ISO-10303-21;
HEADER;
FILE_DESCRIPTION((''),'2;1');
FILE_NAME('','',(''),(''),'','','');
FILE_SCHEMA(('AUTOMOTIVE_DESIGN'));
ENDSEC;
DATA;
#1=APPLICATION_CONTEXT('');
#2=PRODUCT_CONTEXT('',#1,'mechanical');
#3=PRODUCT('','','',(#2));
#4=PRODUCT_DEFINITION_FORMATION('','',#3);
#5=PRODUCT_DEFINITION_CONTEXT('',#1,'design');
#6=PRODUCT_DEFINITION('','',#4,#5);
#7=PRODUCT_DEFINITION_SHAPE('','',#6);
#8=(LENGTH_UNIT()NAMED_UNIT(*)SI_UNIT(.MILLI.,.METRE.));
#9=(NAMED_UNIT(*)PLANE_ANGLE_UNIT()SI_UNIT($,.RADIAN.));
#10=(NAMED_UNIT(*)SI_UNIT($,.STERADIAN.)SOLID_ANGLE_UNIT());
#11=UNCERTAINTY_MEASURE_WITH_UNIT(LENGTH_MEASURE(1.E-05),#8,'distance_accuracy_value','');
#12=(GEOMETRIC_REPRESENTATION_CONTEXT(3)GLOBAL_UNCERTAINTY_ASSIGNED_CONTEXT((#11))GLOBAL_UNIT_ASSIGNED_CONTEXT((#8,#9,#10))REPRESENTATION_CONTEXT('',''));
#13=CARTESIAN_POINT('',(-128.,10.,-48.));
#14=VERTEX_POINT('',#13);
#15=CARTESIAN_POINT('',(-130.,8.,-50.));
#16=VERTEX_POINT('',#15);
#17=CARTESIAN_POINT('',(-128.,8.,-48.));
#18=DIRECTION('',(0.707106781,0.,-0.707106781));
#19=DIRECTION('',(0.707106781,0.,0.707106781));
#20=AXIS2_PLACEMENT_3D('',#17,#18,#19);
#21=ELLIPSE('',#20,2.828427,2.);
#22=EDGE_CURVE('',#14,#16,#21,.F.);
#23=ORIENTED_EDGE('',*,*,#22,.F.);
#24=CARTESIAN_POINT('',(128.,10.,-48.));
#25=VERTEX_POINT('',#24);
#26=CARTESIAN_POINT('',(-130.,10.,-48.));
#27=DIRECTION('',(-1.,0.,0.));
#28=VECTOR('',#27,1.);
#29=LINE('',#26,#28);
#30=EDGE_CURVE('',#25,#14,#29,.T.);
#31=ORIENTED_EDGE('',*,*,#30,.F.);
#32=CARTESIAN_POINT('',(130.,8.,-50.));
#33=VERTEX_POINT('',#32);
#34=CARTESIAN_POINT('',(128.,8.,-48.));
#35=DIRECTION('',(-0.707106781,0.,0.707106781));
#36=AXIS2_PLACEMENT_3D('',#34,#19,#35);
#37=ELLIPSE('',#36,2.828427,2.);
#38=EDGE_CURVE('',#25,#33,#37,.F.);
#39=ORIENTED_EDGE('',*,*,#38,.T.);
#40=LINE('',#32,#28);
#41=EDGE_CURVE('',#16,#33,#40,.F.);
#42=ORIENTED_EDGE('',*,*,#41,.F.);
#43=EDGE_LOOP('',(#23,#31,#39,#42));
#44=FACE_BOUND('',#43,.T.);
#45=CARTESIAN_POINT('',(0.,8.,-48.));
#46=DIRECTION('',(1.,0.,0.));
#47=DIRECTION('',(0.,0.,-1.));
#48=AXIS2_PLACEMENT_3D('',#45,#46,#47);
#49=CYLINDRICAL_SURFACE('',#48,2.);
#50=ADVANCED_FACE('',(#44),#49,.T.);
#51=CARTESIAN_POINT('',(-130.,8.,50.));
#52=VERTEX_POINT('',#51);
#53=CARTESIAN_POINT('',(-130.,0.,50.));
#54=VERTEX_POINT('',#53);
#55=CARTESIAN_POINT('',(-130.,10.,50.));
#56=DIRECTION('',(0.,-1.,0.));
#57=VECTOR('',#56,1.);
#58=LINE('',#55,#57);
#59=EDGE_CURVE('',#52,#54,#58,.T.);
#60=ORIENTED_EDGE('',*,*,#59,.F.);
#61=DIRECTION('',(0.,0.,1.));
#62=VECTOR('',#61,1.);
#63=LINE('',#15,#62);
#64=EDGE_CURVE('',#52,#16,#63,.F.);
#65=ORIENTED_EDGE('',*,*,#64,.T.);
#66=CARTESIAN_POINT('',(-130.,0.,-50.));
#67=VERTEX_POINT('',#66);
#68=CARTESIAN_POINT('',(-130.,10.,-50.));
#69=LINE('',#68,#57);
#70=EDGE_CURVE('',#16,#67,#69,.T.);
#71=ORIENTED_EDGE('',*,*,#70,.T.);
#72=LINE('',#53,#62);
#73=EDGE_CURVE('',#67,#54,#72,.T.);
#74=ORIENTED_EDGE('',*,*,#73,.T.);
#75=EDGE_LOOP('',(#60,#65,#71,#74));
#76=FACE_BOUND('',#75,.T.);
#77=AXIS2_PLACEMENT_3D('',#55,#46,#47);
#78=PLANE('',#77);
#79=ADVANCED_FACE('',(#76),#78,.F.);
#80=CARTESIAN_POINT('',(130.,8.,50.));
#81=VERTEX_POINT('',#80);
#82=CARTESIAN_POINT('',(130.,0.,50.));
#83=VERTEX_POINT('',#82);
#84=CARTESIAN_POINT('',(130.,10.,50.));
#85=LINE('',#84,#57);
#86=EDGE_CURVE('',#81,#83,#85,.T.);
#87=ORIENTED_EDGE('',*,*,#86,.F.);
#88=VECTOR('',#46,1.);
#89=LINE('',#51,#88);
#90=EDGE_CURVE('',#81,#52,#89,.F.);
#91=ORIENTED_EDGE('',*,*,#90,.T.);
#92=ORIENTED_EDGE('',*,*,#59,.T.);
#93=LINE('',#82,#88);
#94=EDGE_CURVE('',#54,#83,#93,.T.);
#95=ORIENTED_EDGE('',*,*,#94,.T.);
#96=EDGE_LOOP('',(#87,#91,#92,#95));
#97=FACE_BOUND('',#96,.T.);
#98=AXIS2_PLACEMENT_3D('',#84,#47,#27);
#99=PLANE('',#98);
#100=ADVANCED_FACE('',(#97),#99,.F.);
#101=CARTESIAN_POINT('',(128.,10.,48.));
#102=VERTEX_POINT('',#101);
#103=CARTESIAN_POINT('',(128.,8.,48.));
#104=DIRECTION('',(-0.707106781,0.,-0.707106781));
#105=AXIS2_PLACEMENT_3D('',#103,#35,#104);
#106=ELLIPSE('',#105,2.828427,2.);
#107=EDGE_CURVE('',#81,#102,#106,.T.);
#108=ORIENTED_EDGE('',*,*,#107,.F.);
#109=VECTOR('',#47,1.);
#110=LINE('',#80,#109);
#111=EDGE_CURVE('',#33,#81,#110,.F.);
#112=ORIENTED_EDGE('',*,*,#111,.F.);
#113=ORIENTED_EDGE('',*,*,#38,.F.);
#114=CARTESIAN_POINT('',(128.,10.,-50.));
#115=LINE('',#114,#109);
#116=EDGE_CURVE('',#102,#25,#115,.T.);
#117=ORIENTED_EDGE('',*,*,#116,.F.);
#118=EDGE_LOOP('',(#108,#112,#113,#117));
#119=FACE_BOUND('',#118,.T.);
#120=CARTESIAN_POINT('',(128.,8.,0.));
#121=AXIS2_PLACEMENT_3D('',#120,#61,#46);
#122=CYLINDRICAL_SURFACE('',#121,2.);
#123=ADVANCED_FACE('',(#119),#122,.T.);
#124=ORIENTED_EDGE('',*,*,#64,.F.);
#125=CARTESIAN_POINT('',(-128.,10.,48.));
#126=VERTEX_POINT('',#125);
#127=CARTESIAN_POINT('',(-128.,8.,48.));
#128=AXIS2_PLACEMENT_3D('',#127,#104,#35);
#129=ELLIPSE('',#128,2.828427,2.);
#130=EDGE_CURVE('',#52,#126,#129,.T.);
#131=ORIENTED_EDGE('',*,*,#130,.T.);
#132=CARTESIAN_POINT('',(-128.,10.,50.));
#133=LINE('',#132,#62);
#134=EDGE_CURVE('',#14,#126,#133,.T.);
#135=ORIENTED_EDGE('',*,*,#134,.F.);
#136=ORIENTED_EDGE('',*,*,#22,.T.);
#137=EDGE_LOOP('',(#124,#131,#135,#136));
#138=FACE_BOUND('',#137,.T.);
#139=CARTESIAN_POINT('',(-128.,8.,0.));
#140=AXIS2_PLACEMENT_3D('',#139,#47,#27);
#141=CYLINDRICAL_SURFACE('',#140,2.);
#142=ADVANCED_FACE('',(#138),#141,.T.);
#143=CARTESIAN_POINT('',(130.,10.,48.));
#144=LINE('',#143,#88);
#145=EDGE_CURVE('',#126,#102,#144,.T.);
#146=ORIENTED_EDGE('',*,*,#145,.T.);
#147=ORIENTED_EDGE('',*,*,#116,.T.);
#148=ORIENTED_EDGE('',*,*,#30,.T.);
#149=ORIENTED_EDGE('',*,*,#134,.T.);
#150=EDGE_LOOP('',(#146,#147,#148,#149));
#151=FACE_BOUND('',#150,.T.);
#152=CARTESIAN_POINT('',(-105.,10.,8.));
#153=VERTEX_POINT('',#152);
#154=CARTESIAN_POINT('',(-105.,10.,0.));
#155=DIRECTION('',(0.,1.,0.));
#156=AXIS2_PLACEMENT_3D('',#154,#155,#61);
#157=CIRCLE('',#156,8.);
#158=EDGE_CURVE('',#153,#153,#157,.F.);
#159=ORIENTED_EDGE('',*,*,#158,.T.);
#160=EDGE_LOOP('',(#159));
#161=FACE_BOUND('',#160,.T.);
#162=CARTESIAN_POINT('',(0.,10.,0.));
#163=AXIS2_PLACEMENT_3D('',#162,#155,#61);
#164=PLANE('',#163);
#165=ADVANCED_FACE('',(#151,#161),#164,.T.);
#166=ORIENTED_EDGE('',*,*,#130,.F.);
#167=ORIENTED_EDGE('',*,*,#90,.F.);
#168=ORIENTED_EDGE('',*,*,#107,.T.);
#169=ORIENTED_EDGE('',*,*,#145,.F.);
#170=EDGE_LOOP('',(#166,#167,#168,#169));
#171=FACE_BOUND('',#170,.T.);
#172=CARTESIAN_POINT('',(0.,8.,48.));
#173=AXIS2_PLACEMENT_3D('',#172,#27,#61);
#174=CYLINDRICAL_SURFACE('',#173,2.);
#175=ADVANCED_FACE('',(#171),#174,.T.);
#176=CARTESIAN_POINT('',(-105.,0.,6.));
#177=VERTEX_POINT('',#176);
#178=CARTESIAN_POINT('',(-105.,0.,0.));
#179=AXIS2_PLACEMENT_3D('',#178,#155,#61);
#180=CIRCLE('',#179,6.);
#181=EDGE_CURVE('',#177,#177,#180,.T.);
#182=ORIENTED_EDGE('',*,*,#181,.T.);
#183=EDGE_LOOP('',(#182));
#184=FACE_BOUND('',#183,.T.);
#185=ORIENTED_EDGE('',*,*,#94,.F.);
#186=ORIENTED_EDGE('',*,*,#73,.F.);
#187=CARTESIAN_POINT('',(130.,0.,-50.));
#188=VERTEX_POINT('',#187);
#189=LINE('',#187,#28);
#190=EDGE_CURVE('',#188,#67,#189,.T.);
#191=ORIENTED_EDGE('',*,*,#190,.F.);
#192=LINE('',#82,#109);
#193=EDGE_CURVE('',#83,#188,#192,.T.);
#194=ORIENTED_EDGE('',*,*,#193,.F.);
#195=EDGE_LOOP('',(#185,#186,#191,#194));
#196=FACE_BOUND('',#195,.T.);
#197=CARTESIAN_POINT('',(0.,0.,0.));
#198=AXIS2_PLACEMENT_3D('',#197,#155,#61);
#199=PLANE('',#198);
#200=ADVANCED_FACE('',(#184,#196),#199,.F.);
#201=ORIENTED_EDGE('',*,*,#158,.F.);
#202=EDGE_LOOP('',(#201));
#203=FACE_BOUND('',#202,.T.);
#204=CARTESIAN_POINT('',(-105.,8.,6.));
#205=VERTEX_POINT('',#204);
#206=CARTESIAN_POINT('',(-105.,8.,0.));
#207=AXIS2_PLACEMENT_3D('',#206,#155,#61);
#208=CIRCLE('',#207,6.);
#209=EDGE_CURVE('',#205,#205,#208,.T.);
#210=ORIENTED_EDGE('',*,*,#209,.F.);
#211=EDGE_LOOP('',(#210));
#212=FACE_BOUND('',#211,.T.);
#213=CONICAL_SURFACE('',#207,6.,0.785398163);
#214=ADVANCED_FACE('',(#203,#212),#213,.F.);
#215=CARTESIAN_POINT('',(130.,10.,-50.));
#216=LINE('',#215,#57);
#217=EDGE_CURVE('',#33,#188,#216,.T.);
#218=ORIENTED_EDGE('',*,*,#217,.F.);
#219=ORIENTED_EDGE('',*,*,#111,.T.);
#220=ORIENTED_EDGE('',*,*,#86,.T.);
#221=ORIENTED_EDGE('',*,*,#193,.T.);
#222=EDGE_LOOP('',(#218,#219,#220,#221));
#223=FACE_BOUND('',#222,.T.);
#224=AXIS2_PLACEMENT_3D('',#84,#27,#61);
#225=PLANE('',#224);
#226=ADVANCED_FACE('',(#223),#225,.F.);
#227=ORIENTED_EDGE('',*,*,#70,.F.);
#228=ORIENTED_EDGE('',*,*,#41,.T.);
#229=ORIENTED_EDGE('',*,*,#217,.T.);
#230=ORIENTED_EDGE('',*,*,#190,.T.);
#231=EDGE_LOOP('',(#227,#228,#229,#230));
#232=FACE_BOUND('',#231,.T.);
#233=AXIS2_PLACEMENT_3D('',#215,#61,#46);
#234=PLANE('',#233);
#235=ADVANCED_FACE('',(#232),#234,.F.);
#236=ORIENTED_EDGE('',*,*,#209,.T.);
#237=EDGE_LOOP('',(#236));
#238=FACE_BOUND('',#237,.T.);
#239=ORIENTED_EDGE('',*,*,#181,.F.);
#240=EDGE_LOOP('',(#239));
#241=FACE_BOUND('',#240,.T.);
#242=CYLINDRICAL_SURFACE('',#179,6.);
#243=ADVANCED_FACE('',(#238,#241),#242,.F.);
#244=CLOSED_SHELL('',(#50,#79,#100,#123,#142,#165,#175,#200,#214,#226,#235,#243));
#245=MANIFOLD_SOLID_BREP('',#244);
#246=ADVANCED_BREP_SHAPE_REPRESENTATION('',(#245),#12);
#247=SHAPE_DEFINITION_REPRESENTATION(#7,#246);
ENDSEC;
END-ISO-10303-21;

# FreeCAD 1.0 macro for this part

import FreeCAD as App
import Part
import Sketcher
Q = App.Units.Quantity


def edges_at(feature, points):
    """Names of the edges that pass closest to the given points."""
    edges = feature.Shape.Edges
    near = lambda p: min(range(len(edges)), key=lambda i: edges[i].distToShape(Part.Vertex(*p))[0])
    return sorted({f"Edge{near(p) + 1}" for p in points})


def add_polygon(sketch, points):
    """Adds a closed chain of lines whose ends are joined by coincident constraints."""
    first, n = sketch.GeometryCount, len(points)
    for a, b in zip(points, points[1:] + points[:1]):
        sketch.addGeometry(Part.LineSegment(App.Vector(*a, 0), App.Vector(*b, 0)), False)
    for i in range(n):
        sketch.addConstraint(Sketcher.Constraint("Coincident", first + i, 2, first + (i + 1) % n, 1))

doc = App.newDocument("Part")
body = doc.addObject("PartDesign::Body", "Body")

sketch1 = body.newObject("Sketcher::SketchObject", "Sketch")
sketch1.AttachmentSupport = (doc.getObject("XZ_Plane"), [""])
sketch1.MapMode = "FlatFace"
add_polygon(sketch1, [(-130, -50), (-130, 50), (130, 50), (130, -50)])
sketch1.addConstraint(Sketcher.Constraint("Vertical", 0))
sketch1.addConstraint(Sketcher.Constraint("Horizontal", 1))
sketch1.addConstraint(Sketcher.Constraint("Vertical", 2))
sketch1.addConstraint(Sketcher.Constraint("Horizontal", 3))
sketch1.addConstraint(Sketcher.Constraint("Symmetric", 0, 2, 2, 2, -1, 1))
sketch1.addConstraint(Sketcher.Constraint("DistanceX", 1, 1, 1, 2, Q("260 mm")))
sketch1.addConstraint(Sketcher.Constraint("DistanceY", 0, 1, 0, 2, Q("100 mm")))
pad1 = body.newObject("PartDesign::Pad", "Pad")
pad1.Profile = sketch1
pad1.Length = 10
pad1.Reversed = True
doc.recompute()

fillet = body.newObject("PartDesign::Fillet", "Fillet")
fillet.Base = (pad1, edges_at(pad1, [
    (130, 10, 0),
    (0, 10, -50),
    (-130, 10, 0),
    (0, 10, 50),
]))
fillet.Radius = 2

sketch2 = body.newObject("Sketcher::SketchObject", "Sketch001")
sketch2.AttachmentSupport = (doc.getObject("XZ_Plane"), [""])
sketch2.MapMode = "FlatFace"
sketch2.AttachmentOffset = App.Placement(App.Vector(0, 0, -10), App.Rotation())
sketch2.addGeometry(Part.Circle(App.Vector(-105, 0, 0), App.Vector(0, 0, 1), 6), False)
sketch2.addConstraint(Sketcher.Constraint("PointOnObject", 0, 3, -1))
sketch2.addConstraint(Sketcher.Constraint("Diameter", 0, Q("12 mm")))
sketch2.addConstraint(Sketcher.Constraint("DistanceX", 0, 3, -1, 1, Q("105 mm")))
pocket1 = body.newObject("PartDesign::Pocket", "Pocket")
pocket1.Profile = sketch2
pocket1.Type = "ThroughAll"
pocket1.Reversed = True
doc.recompute()

chamfer = body.newObject("PartDesign::Chamfer", "Chamfer")
chamfer.Base = (pocket1, edges_at(pocket1, [(-105, 10, -6)]))
chamfer.Size = 2

doc.recompute()
